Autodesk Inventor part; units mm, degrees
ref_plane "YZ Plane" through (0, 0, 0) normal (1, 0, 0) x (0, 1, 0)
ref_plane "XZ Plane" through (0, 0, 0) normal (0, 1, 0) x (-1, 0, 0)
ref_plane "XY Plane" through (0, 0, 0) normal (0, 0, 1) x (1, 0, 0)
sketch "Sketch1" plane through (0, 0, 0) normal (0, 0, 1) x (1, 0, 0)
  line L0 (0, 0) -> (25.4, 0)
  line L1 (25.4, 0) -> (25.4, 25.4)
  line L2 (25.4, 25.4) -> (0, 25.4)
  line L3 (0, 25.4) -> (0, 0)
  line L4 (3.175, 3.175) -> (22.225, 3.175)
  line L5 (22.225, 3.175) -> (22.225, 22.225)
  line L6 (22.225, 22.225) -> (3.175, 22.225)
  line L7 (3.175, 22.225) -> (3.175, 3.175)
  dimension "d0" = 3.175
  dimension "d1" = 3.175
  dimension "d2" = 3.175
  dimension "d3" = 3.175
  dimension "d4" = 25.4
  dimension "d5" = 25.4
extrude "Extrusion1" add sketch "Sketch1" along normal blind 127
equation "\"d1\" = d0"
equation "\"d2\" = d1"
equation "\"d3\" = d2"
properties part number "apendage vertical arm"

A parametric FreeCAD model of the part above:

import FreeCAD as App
import Part
import Sketcher
from FreeCAD import Vector
Q = App.Units.Quantity


def add_polygon(sketch, points):
    """Adds a closed chain of lines whose ends are joined by coincident constraints."""
    first, n = sketch.GeometryCount, len(points)
    for a, b in zip(points, points[1:] + points[:1]):
        sketch.addGeometry(Part.LineSegment(App.Vector(*a, 0), App.Vector(*b, 0)), False)
    for i in range(n):
        sketch.addConstraint(Sketcher.Constraint("Coincident", first + i, 2, first + (i + 1) % n, 1))

doc = App.newDocument("Part")
body = doc.addObject("PartDesign::Body", "Body")

# Sketch on XY plane
sketch1 = body.newObject("Sketcher::SketchObject", "Sketch")
sketch1.AttachmentSupport = (doc.getObject("XY_Plane"), [""])
sketch1.MapMode = "FlatFace"
add_polygon(sketch1, [(0, 25), (0, 0), (25, 0), (25, 25)])  # lines 0-3
add_polygon(sketch1, [(22, 3), (3, 3), (3, 22), (22, 22)])  # lines 4-7
sketch1.addConstraint(Sketcher.Constraint("Vertical", 0))
sketch1.addConstraint(Sketcher.Constraint("Horizontal", 1))
sketch1.addConstraint(Sketcher.Constraint("Vertical", 2))
sketch1.addConstraint(Sketcher.Constraint("Horizontal", 3))
sketch1.addConstraint(Sketcher.Constraint("Horizontal", 4))
sketch1.addConstraint(Sketcher.Constraint("Vertical", 5))
sketch1.addConstraint(Sketcher.Constraint("Horizontal", 6))
sketch1.addConstraint(Sketcher.Constraint("Vertical", 7))
sketch1.addConstraint(Sketcher.Constraint("Coincident", 0, 2, -1, 1))
sketch1.addConstraint(Sketcher.Constraint("Equal", 3, 0))
sketch1.addConstraint(Sketcher.Constraint("Equal", 6, 5))
sketch1.addConstraint(Sketcher.Constraint("DistanceX", 1, 1, 1, 2, Q("1 in")))
sketch1.addConstraint(Sketcher.Constraint("DistanceX", -1, 1, 4, 2, Q("0.125 in")))
sketch1.addConstraint(Sketcher.Constraint("DistanceY", -1, 1, 4, 2, Q("0.125 in")))
sketch1.addConstraint(Sketcher.Constraint("DistanceY", 5, 2, 3, 2, Q("0.125 in")))
pad1 = body.newObject("PartDesign::Pad", "Pad")
pad1.Profile = sketch1
pad1.Length = Q("5 in")

doc.recompute()
